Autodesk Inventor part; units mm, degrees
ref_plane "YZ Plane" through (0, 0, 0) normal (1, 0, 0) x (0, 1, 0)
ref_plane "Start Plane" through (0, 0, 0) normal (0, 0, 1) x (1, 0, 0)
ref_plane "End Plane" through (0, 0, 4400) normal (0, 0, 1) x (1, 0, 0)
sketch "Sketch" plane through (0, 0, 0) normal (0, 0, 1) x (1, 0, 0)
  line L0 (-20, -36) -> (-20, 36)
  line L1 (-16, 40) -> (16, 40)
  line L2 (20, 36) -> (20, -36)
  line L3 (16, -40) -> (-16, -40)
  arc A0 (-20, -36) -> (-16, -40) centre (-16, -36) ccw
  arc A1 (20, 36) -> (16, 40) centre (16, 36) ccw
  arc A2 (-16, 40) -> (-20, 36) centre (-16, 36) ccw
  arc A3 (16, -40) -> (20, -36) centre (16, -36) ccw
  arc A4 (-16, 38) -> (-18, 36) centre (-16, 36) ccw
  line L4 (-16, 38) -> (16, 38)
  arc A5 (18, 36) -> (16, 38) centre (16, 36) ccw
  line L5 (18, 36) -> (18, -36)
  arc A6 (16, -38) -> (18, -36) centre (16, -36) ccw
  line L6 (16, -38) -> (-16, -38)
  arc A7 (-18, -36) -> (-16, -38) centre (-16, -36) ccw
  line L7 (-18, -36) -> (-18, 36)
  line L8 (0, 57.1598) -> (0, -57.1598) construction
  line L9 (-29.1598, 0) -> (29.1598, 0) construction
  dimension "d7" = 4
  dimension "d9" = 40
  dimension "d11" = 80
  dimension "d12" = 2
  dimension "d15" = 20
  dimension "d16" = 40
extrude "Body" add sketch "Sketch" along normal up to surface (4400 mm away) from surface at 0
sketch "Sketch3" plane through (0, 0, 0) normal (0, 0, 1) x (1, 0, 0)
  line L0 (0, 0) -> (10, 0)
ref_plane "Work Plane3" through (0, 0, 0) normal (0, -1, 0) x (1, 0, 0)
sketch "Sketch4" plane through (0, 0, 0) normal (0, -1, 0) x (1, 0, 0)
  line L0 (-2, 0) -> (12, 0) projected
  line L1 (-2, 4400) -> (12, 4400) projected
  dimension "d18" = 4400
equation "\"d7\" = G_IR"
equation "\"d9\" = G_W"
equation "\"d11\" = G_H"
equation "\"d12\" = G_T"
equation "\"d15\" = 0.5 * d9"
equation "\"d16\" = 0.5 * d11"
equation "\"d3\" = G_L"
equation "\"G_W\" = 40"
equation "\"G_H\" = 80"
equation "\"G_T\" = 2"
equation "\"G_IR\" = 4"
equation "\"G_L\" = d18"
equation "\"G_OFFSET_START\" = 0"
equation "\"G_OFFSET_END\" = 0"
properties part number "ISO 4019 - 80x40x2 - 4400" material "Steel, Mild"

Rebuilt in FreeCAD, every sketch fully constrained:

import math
import FreeCAD as App
import Part
import Sketcher

doc = App.newDocument("Part")
body = doc.addObject("PartDesign::Body", "Body")

# Sketch on XY plane
sketch1 = doc.addObject("Sketcher::SketchObject", "Sketch")
body.addObject(sketch1)
sketch1.AttachmentSupport = (doc.XY_Plane, [""])
sketch1.MapMode = "FlatFace"
sketch1.addGeometry([
    Part.LineSegment(App.Vector(-20, 36, 0), App.Vector(-20, -36, 0)),  # 0
    Part.ArcOfCircle(Part.Circle(App.Vector(-16, -36, 0), App.Vector(0, 0, 1), 4), math.radians(180), math.radians(270)),  # 1
    Part.LineSegment(App.Vector(-16, -40, 0), App.Vector(16, -40, 0)),  # 2
    Part.ArcOfCircle(Part.Circle(App.Vector(16, -36, 0), App.Vector(0, 0, 1), 4), math.radians(-90), math.radians(0)),  # 3
    Part.LineSegment(App.Vector(20, -36, 0), App.Vector(20, 36, 0)),  # 4
    Part.ArcOfCircle(Part.Circle(App.Vector(16, 36, 0), App.Vector(0, 0, 1), 4), math.radians(0), math.radians(90)),  # 5
    Part.LineSegment(App.Vector(16, 40, 0), App.Vector(-16, 40, 0)),  # 6
    Part.ArcOfCircle(Part.Circle(App.Vector(-16, 36, 0), App.Vector(0, 0, 1), 4), math.radians(90), math.radians(180)),  # 7
    Part.ArcOfCircle(Part.Circle(App.Vector(-16, 36, 0), App.Vector(0, 0, 1), 2), math.radians(90), math.radians(180)),  # 8
    Part.LineSegment(App.Vector(-16, 38, 0), App.Vector(16, 38, 0)),  # 9
    Part.ArcOfCircle(Part.Circle(App.Vector(16, 36, 0), App.Vector(0, 0, 1), 2), math.radians(0), math.radians(90)),  # 10
    Part.LineSegment(App.Vector(18, 36, 0), App.Vector(18, -36, 0)),  # 11
    Part.ArcOfCircle(Part.Circle(App.Vector(16, -36, 0), App.Vector(0, 0, 1), 2), math.radians(-90), math.radians(0)),  # 12
    Part.LineSegment(App.Vector(16, -38, 0), App.Vector(-16, -38, 0)),  # 13
    Part.ArcOfCircle(Part.Circle(App.Vector(-16, -36, 0), App.Vector(0, 0, 1), 2), math.radians(180), math.radians(270)),  # 14
    Part.LineSegment(App.Vector(-18, -36, 0), App.Vector(-18, 36, 0)),  # 15
], False)
sketch1.addConstraint([
    Sketcher.Constraint("Tangent", 0, 2, 1, 1),
    Sketcher.Constraint("Tangent", 1, 2, 2, 1),
    Sketcher.Constraint("Tangent", 2, 2, 3, 1),
    Sketcher.Constraint("Tangent", 3, 2, 4, 1),
    Sketcher.Constraint("Tangent", 4, 2, 5, 1),
    Sketcher.Constraint("Tangent", 5, 2, 6, 1),
    Sketcher.Constraint("Tangent", 6, 2, 7, 1),
    Sketcher.Constraint("Tangent", 7, 2, 0, 1),
    Sketcher.Constraint("Tangent", 8, 1, 9, 1),
    Sketcher.Constraint("Tangent", 9, 2, 10, 2),
    Sketcher.Constraint("Tangent", 10, 1, 11, 1),
    Sketcher.Constraint("Tangent", 11, 2, 12, 2),
    Sketcher.Constraint("Tangent", 12, 1, 13, 1),
    Sketcher.Constraint("Tangent", 13, 2, 14, 2),
    Sketcher.Constraint("Tangent", 14, 1, 15, 1),
    Sketcher.Constraint("Tangent", 15, 2, 8, 2),
    Sketcher.Constraint("Vertical", 0),
    Sketcher.Constraint("Horizontal", 2),
    Sketcher.Constraint("Vertical", 4),
    Sketcher.Constraint("Horizontal", 6),
    Sketcher.Constraint("Horizontal", 9),
    Sketcher.Constraint("Vertical", 11),
    Sketcher.Constraint("Horizontal", 13),
    Sketcher.Constraint("Vertical", 15),
    Sketcher.Constraint("Coincident", 8, 3, 7, 3),
    Sketcher.Constraint("Coincident", 10, 3, 5, 3),
    Sketcher.Constraint("Coincident", 12, 3, 3, 3),
    Sketcher.Constraint("Equal", 1, 3),
    Sketcher.Constraint("Equal", 3, 5),
    Sketcher.Constraint("Equal", 5, 7),
    Sketcher.Constraint("Equal", 12, 14),
    Sketcher.Constraint("Symmetric", 1, 3, 5, 3, -1, 1),
    Sketcher.Constraint("Radius", 1, 4.0),
    Sketcher.Constraint("Radius", 8, 2.0),
    Sketcher.Constraint("DistanceX", 0, 2, -1, 1, 20.0),
    Sketcher.Constraint("DistanceY", 1, 2, -1, 1, 40.0),
])
pad1 = doc.addObject("PartDesign::Pad", "Pad")
body.addObject(pad1)
pad1.Profile = sketch1
pad1.Length = 4400

doc.recompute()
